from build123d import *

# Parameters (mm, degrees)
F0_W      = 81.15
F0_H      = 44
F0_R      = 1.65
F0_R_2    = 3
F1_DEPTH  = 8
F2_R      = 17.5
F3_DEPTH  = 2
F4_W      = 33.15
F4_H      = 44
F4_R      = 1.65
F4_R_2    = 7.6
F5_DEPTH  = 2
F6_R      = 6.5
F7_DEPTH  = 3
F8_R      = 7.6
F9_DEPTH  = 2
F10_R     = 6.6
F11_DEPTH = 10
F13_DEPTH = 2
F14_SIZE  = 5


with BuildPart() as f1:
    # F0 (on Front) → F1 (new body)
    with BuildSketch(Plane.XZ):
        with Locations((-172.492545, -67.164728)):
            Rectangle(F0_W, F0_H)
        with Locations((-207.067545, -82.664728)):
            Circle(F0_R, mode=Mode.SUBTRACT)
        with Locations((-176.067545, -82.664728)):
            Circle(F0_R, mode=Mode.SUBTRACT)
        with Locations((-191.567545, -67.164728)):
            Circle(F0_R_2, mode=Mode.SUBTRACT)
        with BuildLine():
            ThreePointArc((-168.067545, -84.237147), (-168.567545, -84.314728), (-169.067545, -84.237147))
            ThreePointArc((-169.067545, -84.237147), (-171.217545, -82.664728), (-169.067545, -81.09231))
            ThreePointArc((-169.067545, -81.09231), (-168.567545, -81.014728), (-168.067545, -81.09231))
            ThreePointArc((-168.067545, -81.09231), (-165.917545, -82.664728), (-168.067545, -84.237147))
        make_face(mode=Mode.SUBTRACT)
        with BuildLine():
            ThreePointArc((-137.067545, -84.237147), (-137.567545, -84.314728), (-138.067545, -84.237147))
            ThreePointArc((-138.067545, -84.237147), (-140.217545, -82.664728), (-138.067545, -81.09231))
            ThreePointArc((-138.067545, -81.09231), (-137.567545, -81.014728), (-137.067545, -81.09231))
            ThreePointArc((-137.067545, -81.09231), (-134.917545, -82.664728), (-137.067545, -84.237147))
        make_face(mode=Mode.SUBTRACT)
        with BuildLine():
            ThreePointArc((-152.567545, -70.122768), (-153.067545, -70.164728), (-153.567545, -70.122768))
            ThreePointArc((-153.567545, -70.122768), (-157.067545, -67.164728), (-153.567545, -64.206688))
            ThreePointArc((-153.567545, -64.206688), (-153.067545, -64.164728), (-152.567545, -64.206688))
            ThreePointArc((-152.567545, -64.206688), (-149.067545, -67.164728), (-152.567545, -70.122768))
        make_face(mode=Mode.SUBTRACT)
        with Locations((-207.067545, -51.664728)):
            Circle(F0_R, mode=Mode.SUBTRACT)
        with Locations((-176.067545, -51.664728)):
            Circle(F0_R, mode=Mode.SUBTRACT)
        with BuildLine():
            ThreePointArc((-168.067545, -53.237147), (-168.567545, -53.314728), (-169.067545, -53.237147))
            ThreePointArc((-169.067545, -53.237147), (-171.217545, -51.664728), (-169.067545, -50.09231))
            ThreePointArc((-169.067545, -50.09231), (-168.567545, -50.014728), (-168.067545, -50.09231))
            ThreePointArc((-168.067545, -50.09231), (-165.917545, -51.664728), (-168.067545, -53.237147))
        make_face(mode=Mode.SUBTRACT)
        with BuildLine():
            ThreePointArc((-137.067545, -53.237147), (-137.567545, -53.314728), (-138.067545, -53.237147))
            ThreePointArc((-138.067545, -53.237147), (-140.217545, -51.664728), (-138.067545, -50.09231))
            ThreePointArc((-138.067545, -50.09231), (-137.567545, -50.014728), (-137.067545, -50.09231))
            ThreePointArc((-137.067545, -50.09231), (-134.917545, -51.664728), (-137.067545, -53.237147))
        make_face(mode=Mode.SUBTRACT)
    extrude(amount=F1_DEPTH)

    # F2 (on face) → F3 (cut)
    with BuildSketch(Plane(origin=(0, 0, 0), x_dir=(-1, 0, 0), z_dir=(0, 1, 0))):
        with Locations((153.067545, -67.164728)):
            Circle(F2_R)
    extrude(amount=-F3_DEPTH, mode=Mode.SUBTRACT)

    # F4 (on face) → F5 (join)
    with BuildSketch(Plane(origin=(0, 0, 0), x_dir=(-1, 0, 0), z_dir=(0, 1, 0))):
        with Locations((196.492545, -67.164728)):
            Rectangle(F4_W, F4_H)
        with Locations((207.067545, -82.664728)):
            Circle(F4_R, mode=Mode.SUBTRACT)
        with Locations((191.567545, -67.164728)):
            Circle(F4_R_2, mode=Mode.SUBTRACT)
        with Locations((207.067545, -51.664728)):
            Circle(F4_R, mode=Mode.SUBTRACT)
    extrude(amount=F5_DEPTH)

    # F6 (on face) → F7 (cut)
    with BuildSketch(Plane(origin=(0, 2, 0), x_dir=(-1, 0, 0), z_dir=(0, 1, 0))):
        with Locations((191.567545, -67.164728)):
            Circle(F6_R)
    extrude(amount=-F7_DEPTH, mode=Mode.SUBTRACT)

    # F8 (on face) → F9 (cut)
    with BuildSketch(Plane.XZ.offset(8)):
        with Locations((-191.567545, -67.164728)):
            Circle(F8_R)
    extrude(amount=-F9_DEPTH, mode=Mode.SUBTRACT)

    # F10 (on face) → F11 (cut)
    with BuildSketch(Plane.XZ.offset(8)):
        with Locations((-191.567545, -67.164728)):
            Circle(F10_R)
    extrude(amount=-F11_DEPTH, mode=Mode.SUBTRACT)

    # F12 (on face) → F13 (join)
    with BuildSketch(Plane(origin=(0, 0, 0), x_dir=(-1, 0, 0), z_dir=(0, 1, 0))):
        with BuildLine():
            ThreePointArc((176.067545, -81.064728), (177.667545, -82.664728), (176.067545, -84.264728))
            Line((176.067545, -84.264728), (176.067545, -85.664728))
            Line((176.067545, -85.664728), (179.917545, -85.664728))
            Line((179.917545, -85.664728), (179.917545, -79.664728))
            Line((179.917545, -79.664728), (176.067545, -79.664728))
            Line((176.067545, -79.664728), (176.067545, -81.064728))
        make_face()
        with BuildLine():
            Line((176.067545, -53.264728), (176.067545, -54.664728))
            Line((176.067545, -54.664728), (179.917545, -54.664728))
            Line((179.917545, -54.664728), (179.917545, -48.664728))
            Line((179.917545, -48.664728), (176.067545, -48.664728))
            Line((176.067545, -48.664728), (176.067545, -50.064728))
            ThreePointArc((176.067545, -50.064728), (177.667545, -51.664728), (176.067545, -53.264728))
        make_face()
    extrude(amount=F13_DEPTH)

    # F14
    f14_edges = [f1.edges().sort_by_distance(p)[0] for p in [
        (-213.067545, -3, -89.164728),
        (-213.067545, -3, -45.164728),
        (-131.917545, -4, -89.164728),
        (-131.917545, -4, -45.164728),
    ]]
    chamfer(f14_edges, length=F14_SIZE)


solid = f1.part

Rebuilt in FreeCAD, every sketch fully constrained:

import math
import FreeCAD as App
import Part
import Sketcher
Q = App.Units.Quantity


def edges_at(feature, points):
    """Names of the edges that pass closest to the given points."""
    edges = feature.Shape.Edges
    near = lambda p: min(range(len(edges)), key=lambda i: edges[i].distToShape(Part.Vertex(*p))[0])
    return sorted({f"Edge{near(p) + 1}" for p in points})

doc = App.newDocument("Part")
body = doc.addObject("PartDesign::Body", "Body")

sketch1 = doc.addObject("Sketcher::SketchObject", "Sketch")
body.addObject(sketch1)
sketch1.AttachmentSupport = (doc.XZ_Plane, [""])
sketch1.MapMode = "FlatFace"
sketch1.addGeometry(Part.LineSegment(App.Vector(-213.1, -45.2, 0), App.Vector(-213.1, -89.2, 0)), False)
sketch1.addGeometry(Part.LineSegment(App.Vector(-213.1, -89.2, 0), App.Vector(-131.9, -89.2, 0)), False)
sketch1.addGeometry(Part.LineSegment(App.Vector(-131.9, -89.2, 0), App.Vector(-131.9, -45.2, 0)), False)
sketch1.addGeometry(Part.LineSegment(App.Vector(-131.9, -45.2, 0), App.Vector(-213.1, -45.2, 0)), False)
sketch1.addGeometry(Part.Circle(App.Vector(-207.1, -82.7, 0), App.Vector(0, 0, 1), 1.6), False)
sketch1.addGeometry(Part.Circle(App.Vector(-176.1, -82.7, 0), App.Vector(0, 0, 1), 1.6), False)
sketch1.addGeometry(Part.ArcOfCircle(Part.Circle(App.Vector(-167.6, -82.7, 0), App.Vector(0, 0, 1), 1.6), math.radians(-108), math.radians(108)), False)
sketch1.addGeometry(Part.ArcOfCircle(Part.Circle(App.Vector(-168.6, -82.7, 0), App.Vector(0, 0, 1), 1.7), math.radians(-108), math.radians(-72)), False)
sketch1.addGeometry(Part.ArcOfCircle(Part.Circle(App.Vector(-169.6, -82.7, 0), App.Vector(0, 0, 1), 1.6), math.radians(72), math.radians(288)), False)
sketch1.addGeometry(Part.ArcOfCircle(Part.Circle(App.Vector(-168.6, -82.7, 0), App.Vector(0, 0, 1), 1.6), math.radians(72), math.radians(108)), False)
sketch1.addGeometry(Part.ArcOfCircle(Part.Circle(App.Vector(-136.6, -82.7, 0), App.Vector(0, 0, 1), 1.6), math.radians(-108), math.radians(108)), False)
sketch1.addGeometry(Part.ArcOfCircle(Part.Circle(App.Vector(-137.6, -82.7, 0), App.Vector(0, 0, 1), 1.7), math.radians(-108), math.radians(-72)), False)
sketch1.addGeometry(Part.ArcOfCircle(Part.Circle(App.Vector(-138.6, -82.7, 0), App.Vector(0, 0, 1), 1.6), math.radians(72), math.radians(288)), False)
sketch1.addGeometry(Part.ArcOfCircle(Part.Circle(App.Vector(-137.6, -82.7, 0), App.Vector(0, 0, 1), 1.6), math.radians(72), math.radians(108)), False)
sketch1.addGeometry(Part.Circle(App.Vector(-191.6, -67.2, 0), App.Vector(0, 0, 1), 3), False)
sketch1.addGeometry(Part.Circle(App.Vector(-207.1, -51.7, 0), App.Vector(0, 0, 1), 1.6), False)
sketch1.addGeometry(Part.Circle(App.Vector(-176.1, -51.7, 0), App.Vector(0, 0, 1), 1.6), False)
sketch1.addGeometry(Part.ArcOfCircle(Part.Circle(App.Vector(-152.1, -67.2, 0), App.Vector(0, 0, 1), 3), math.radians(-100), math.radians(100)), False)
sketch1.addGeometry(Part.ArcOfCircle(Part.Circle(App.Vector(-153.1, -67.2, 0), App.Vector(0, 0, 1), 3), math.radians(-99.59), math.radians(-80.41)), False)
sketch1.addGeometry(Part.ArcOfCircle(Part.Circle(App.Vector(-154.1, -67.2, 0), App.Vector(0, 0, 1), 3), math.radians(80), math.radians(280)), False)
sketch1.addGeometry(Part.ArcOfCircle(Part.Circle(App.Vector(-153.1, -67.2, 0), App.Vector(0, 0, 1), 3), math.radians(80.41), math.radians(99.59)), False)
sketch1.addGeometry(Part.ArcOfCircle(Part.Circle(App.Vector(-167.6, -51.7, 0), App.Vector(0, 0, 1), 1.6), math.radians(-108), math.radians(108)), False)
sketch1.addGeometry(Part.ArcOfCircle(Part.Circle(App.Vector(-168.6, -51.7, 0), App.Vector(0, 0, 1), 1.7), math.radians(-108), math.radians(-72)), False)
sketch1.addGeometry(Part.ArcOfCircle(Part.Circle(App.Vector(-169.6, -51.7, 0), App.Vector(0, 0, 1), 1.6), math.radians(72), math.radians(288)), False)
sketch1.addGeometry(Part.ArcOfCircle(Part.Circle(App.Vector(-168.6, -51.7, 0), App.Vector(0, 0, 1), 1.6), math.radians(72), math.radians(108)), False)
sketch1.addGeometry(Part.ArcOfCircle(Part.Circle(App.Vector(-136.6, -51.7, 0), App.Vector(0, 0, 1), 1.6), math.radians(-108), math.radians(108)), False)
sketch1.addGeometry(Part.ArcOfCircle(Part.Circle(App.Vector(-137.6, -51.7, 0), App.Vector(0, 0, 1), 1.7), math.radians(-108), math.radians(-72)), False)
sketch1.addGeometry(Part.ArcOfCircle(Part.Circle(App.Vector(-138.6, -51.7, 0), App.Vector(0, 0, 1), 1.6), math.radians(72), math.radians(288)), False)
sketch1.addGeometry(Part.ArcOfCircle(Part.Circle(App.Vector(-137.6, -51.7, 0), App.Vector(0, 0, 1), 1.6), math.radians(72), math.radians(108)), False)
sketch1.addConstraint(Sketcher.Constraint("Coincident", 0, 2, 1, 1))
sketch1.addConstraint(Sketcher.Constraint("Coincident", 1, 2, 2, 1))
sketch1.addConstraint(Sketcher.Constraint("Coincident", 2, 2, 3, 1))
sketch1.addConstraint(Sketcher.Constraint("Coincident", 3, 2, 0, 1))
sketch1.addConstraint(Sketcher.Constraint("Coincident", 6, 1, 7, 2))
sketch1.addConstraint(Sketcher.Constraint("Coincident", 7, 1, 8, 2))
sketch1.addConstraint(Sketcher.Constraint("Coincident", 8, 1, 9, 2))
sketch1.addConstraint(Sketcher.Constraint("Coincident", 9, 1, 6, 2))
sketch1.addConstraint(Sketcher.Constraint("Coincident", 10, 1, 11, 2))
sketch1.addConstraint(Sketcher.Constraint("Coincident", 11, 1, 12, 2))
sketch1.addConstraint(Sketcher.Constraint("Coincident", 12, 1, 13, 2))
sketch1.addConstraint(Sketcher.Constraint("Coincident", 13, 1, 10, 2))
sketch1.addConstraint(Sketcher.Constraint("Coincident", 17, 1, 18, 2))
sketch1.addConstraint(Sketcher.Constraint("Coincident", 18, 1, 19, 2))
sketch1.addConstraint(Sketcher.Constraint("Coincident", 19, 1, 20, 2))
sketch1.addConstraint(Sketcher.Constraint("Coincident", 20, 1, 17, 2))
sketch1.addConstraint(Sketcher.Constraint("Coincident", 21, 1, 22, 2))
sketch1.addConstraint(Sketcher.Constraint("Coincident", 22, 1, 23, 2))
sketch1.addConstraint(Sketcher.Constraint("Coincident", 23, 1, 24, 2))
sketch1.addConstraint(Sketcher.Constraint("Coincident", 24, 1, 21, 2))
sketch1.addConstraint(Sketcher.Constraint("Coincident", 25, 1, 26, 2))
sketch1.addConstraint(Sketcher.Constraint("Coincident", 26, 1, 27, 2))
sketch1.addConstraint(Sketcher.Constraint("Coincident", 27, 1, 28, 2))
sketch1.addConstraint(Sketcher.Constraint("Coincident", 28, 1, 25, 2))
sketch1.addConstraint(Sketcher.Constraint("Vertical", 0))
sketch1.addConstraint(Sketcher.Constraint("Horizontal", 1))
sketch1.addConstraint(Sketcher.Constraint("Vertical", 2))
sketch1.addConstraint(Sketcher.Constraint("Horizontal", 3))
sketch1.addConstraint(Sketcher.Constraint("Coincident", 9, 3, 7, 3))
sketch1.addConstraint(Sketcher.Constraint("Coincident", 13, 3, 11, 3))
sketch1.addConstraint(Sketcher.Constraint("Coincident", 24, 3, 22, 3))
sketch1.addConstraint(Sketcher.Constraint("Coincident", 28, 3, 26, 3))
sketch1.addConstraint(Sketcher.Constraint("Equal", 4, 5))
sketch1.addConstraint(Sketcher.Constraint("Equal", 5, 6))
sketch1.addConstraint(Sketcher.Constraint("Equal", 6, 8))
sketch1.addConstraint(Sketcher.Constraint("Equal", 8, 10))
sketch1.addConstraint(Sketcher.Constraint("Equal", 7, 11))
sketch1.addConstraint(Sketcher.Constraint("Equal", 10, 12))
sketch1.addConstraint(Sketcher.Constraint("Equal", 9, 13))
sketch1.addConstraint(Sketcher.Constraint("Equal", 12, 15))
sketch1.addConstraint(Sketcher.Constraint("Equal", 15, 16))
sketch1.addConstraint(Sketcher.Constraint("Equal", 14, 17))
sketch1.addConstraint(Sketcher.Constraint("Equal", 17, 19))
sketch1.addConstraint(Sketcher.Constraint("Equal", 18, 20))
sketch1.addConstraint(Sketcher.Constraint("Equal", 16, 21))
sketch1.addConstraint(Sketcher.Constraint("Equal", 11, 22))
sketch1.addConstraint(Sketcher.Constraint("Equal", 21, 23))
sketch1.addConstraint(Sketcher.Constraint("Equal", 13, 24))
sketch1.addConstraint(Sketcher.Constraint("Equal", 23, 25))
sketch1.addConstraint(Sketcher.Constraint("Equal", 22, 26))
sketch1.addConstraint(Sketcher.Constraint("Equal", 25, 27))
sketch1.addConstraint(Sketcher.Constraint("Equal", 24, 28))
sketch1.addConstraint(Sketcher.Constraint("Horizontal", 4, 3, 5, 3))
sketch1.addConstraint(Sketcher.Constraint("Horizontal", 5, 3, 6, 3))
sketch1.addConstraint(Sketcher.Constraint("Horizontal", 6, 3, 8, 3))
sketch1.addConstraint(Sketcher.Constraint("Horizontal", 8, 3, 10, 3))
sketch1.addConstraint(Sketcher.Constraint("Horizontal", 9, 3, 11, 3))
sketch1.addConstraint(Sketcher.Constraint("Horizontal", 10, 3, 12, 3))
sketch1.addConstraint(Sketcher.Constraint("Horizontal", 15, 3, 16, 3))
sketch1.addConstraint(Sketcher.Constraint("Horizontal", 14, 3, 17, 3))
sketch1.addConstraint(Sketcher.Constraint("Horizontal", 17, 3, 19, 3))
sketch1.addConstraint(Sketcher.Constraint("Horizontal", 16, 3, 21, 3))
sketch1.addConstraint(Sketcher.Constraint("Horizontal", 21, 3, 23, 3))
sketch1.addConstraint(Sketcher.Constraint("Horizontal", 23, 3, 25, 3))
sketch1.addConstraint(Sketcher.Constraint("Horizontal", 24, 3, 26, 3))
sketch1.addConstraint(Sketcher.Constraint("Horizontal", 25, 3, 27, 3))
sketch1.addConstraint(Sketcher.Constraint("Horizontal", 6, 1, 7, 1))
sketch1.addConstraint(Sketcher.Constraint("Horizontal", 7, 1, 10, 1))
sketch1.addConstraint(Sketcher.Constraint("Horizontal", 10, 1, 11, 1))
sketch1.addConstraint(Sketcher.Constraint("Horizontal", 17, 1, 18, 1))
sketch1.addConstraint(Sketcher.Constraint("Horizontal", 19, 1, 20, 1))
sketch1.addConstraint(Sketcher.Constraint("Horizontal", 21, 1, 22, 1))
sketch1.addConstraint(Sketcher.Constraint("Horizontal", 22, 1, 25, 1))
sketch1.addConstraint(Sketcher.Constraint("Horizontal", 25, 1, 26, 1))
sketch1.addConstraint(Sketcher.Constraint("Vertical", 4, 3, 15, 3))
sketch1.addConstraint(Sketcher.Constraint("Vertical", 5, 3, 16, 3))
sketch1.addConstraint(Sketcher.Constraint("Vertical", 6, 3, 21, 3))
sketch1.addConstraint(Sketcher.Constraint("Vertical", 9, 3, 22, 3))
sketch1.addConstraint(Sketcher.Constraint("Vertical", 10, 3, 25, 3))
sketch1.addConstraint(Sketcher.Constraint("Vertical", 7, 1, 8, 1))
sketch1.addConstraint(Sketcher.Constraint("Vertical", 18, 1, 19, 1))
sketch1.addConstraint(Sketcher.Constraint("Vertical", 9, 1, 21, 1))
sketch1.addConstraint(Sketcher.Constraint("Diameter", 14, Q("6 mm")))
sketch1.addConstraint(Sketcher.Constraint("Diameter", 4, Q("3.3 mm")))
sketch1.addConstraint(Sketcher.Constraint("DistanceY", 0, 2, 0, 1, Q("44 mm")))
sketch1.addConstraint(Sketcher.Constraint("DistanceX", 4, 3, 5, 3, Q("31 mm")))
sketch1.addConstraint(Sketcher.Constraint("DistanceX", 7, 3, 6, 3, Q("1 mm")))
sketch1.addConstraint(Sketcher.Constraint("DistanceX", 6, 3, 10, 3, Q("31 mm")))
sketch1.addConstraint(Sketcher.Constraint("DistanceX", 14, 3, 8, 3, Q("22 mm")))
sketch1.addConstraint(Sketcher.Constraint("DistanceY", 4, 3, 15, 3, Q("31 mm")))
sketch1.addConstraint(Sketcher.Constraint("DistanceX", 18, 3, 17, 3, Q("1 mm")))
sketch1.addConstraint(Sketcher.Constraint("DistanceX", 0, 2, 4, 3, Q("6 mm")))
sketch1.addConstraint(Sketcher.Constraint("DistanceY", 0, 2, 14, 3, Q("22 mm")))
sketch1.addConstraint(Sketcher.Constraint("DistanceX", 5, 3, 6, 1, Q("8 mm")))
sketch1.addConstraint(Sketcher.Constraint("DistanceX", 7, 1, 6, 1, Q("1 mm")))
sketch1.addConstraint(Sketcher.Constraint("DistanceX", 18, 1, 17, 1, Q("1 mm")))
sketch1.addConstraint(Sketcher.Constraint("DistanceX", 1, 1, 1, 2, Q("81.15 mm")))
sketch1.addConstraint(Sketcher.Constraint("DistanceY", 4, 3, 14, 3, Q("15.5 mm")))
sketch1.addConstraint(Sketcher.Constraint("DistanceX", 17, 3, 12, 3, Q("13.5 mm")))
sketch1.addConstraint(Sketcher.Constraint("Radius", 7, Q("1.65001 mm")))
sketch1.addConstraint(Sketcher.Constraint("Radius", 18, Q("3.000008 mm")))
sketch1.addConstraint(Sketcher.Constraint("DistanceY", 6, 3, -1, 1, Q("82.664728 mm")))
sketch1.addConstraint(Sketcher.Constraint("DistanceX", 4, 3, -1, 1, Q("207.067545 mm")))
pad1 = doc.addObject("PartDesign::Pad", "Pad")
body.addObject(pad1)
pad1.Profile = sketch1
pad1.Length = 8

sketch2 = doc.addObject("Sketcher::SketchObject", "Sketch001")
body.addObject(sketch2)
sketch2.AttachmentSupport = (doc.XZ_Plane, [""])
sketch2.MapMode = "FlatFace"
sketch2.addGeometry(Part.Circle(App.Vector(-153, -67, 0), App.Vector(0, 0, 1), 18), False)
sketch2.addConstraint(Sketcher.Constraint("Diameter", 0, Q("35 mm")))
sketch2.addConstraint(Sketcher.Constraint("DistanceX", 0, 3, -1, 1, Q("153.067545 mm")))
sketch2.addConstraint(Sketcher.Constraint("DistanceY", 0, 3, -1, 1, Q("67.164728 mm")))
pocket1 = doc.addObject("PartDesign::Pocket", "Pocket")
body.addObject(pocket1)
pocket1.Profile = sketch2
pocket1.Length = 2
pocket1.Reversed = True

sketch3 = doc.addObject("Sketcher::SketchObject", "Sketch002")
body.addObject(sketch3)
sketch3.AttachmentSupport = (doc.XZ_Plane, [""])
sketch3.MapMode = "FlatFace"
sketch3.addGeometry(Part.LineSegment(App.Vector(-179.9, -45.2, 0), App.Vector(-179.9, -89.2, 0)), False)
sketch3.addGeometry(Part.LineSegment(App.Vector(-179.9, -89.2, 0), App.Vector(-213.1, -89.2, 0)), False)
sketch3.addGeometry(Part.LineSegment(App.Vector(-213.1, -89.2, 0), App.Vector(-213.1, -45.2, 0)), False)
sketch3.addGeometry(Part.LineSegment(App.Vector(-213.1, -45.2, 0), App.Vector(-179.9, -45.2, 0)), False)
sketch3.addGeometry(Part.Circle(App.Vector(-207.1, -82.7, 0), App.Vector(0, 0, 1), 1.6), False)
sketch3.addGeometry(Part.Circle(App.Vector(-191.6, -67.2, 0), App.Vector(0, 0, 1), 7.6), False)
sketch3.addGeometry(Part.Circle(App.Vector(-207.1, -51.7, 0), App.Vector(0, 0, 1), 1.6), False)
sketch3.addConstraint(Sketcher.Constraint("Coincident", 0, 2, 1, 1))
sketch3.addConstraint(Sketcher.Constraint("Coincident", 1, 2, 2, 1))
sketch3.addConstraint(Sketcher.Constraint("Coincident", 2, 2, 3, 1))
sketch3.addConstraint(Sketcher.Constraint("Coincident", 3, 2, 0, 1))
sketch3.addConstraint(Sketcher.Constraint("Vertical", 0))
sketch3.addConstraint(Sketcher.Constraint("Horizontal", 1))
sketch3.addConstraint(Sketcher.Constraint("Vertical", 2))
sketch3.addConstraint(Sketcher.Constraint("Horizontal", 3))
sketch3.addConstraint(Sketcher.Constraint("Equal", 4, 6))
sketch3.addConstraint(Sketcher.Constraint("Vertical", 4, 3, 6, 3))
sketch3.addConstraint(Sketcher.Constraint("Diameter", 4, Q("3.3 mm")))
sketch3.addConstraint(Sketcher.Constraint("Diameter", 5, Q("15.2 mm")))
sketch3.addConstraint(Sketcher.Constraint("DistanceY", 0, 2, 0, 1, Q("44 mm")))
sketch3.addConstraint(Sketcher.Constraint("DistanceY", 4, 3, 6, 3, Q("31 mm")))
sketch3.addConstraint(Sketcher.Constraint("DistanceY", 0, 2, 5, 3, Q("22 mm")))
sketch3.addConstraint(Sketcher.Constraint("DistanceX", 1, 2, 4, 3, Q("6 mm")))
sketch3.addConstraint(Sketcher.Constraint("DistanceX", 1, 2, 1, 1, Q("33.15 mm")))
sketch3.addConstraint(Sketcher.Constraint("DistanceX", 4, 3, 5, 3, Q("15.5 mm")))
sketch3.addConstraint(Sketcher.Constraint("DistanceY", 4, 3, 5, 3, Q("15.5 mm")))
sketch3.addConstraint(Sketcher.Constraint("DistanceX", 4, 3, -1, 1, Q("207.067545 mm")))
sketch3.addConstraint(Sketcher.Constraint("DistanceY", 4, 3, -1, 1, Q("82.664728 mm")))
pad2 = doc.addObject("PartDesign::Pad", "Pad001")
body.addObject(pad2)
pad2.Profile = sketch3
pad2.Length = 2
pad2.Reversed = True

sketch4 = doc.addObject("Sketcher::SketchObject", "Sketch003")
body.addObject(sketch4)
sketch4.AttachmentSupport = (doc.XZ_Plane, [""])
sketch4.MapMode = "FlatFace"
sketch4.AttachmentOffset = App.Placement(App.Vector(0, 0, -2), App.Rotation())
sketch4.addGeometry(Part.Circle(App.Vector(-192, -67, 0), App.Vector(0, 0, 1), 6), False)
sketch4.addConstraint(Sketcher.Constraint("Diameter", 0, Q("13 mm")))
sketch4.addConstraint(Sketcher.Constraint("DistanceX", 0, 3, -1, 1, Q("191.567545 mm")))
sketch4.addConstraint(Sketcher.Constraint("DistanceY", 0, 3, -1, 1, Q("67.164728 mm")))
pocket2 = doc.addObject("PartDesign::Pocket", "Pocket001")
body.addObject(pocket2)
pocket2.Profile = sketch4
pocket2.Length = 3
pocket2.Reversed = True

sketch5 = doc.addObject("Sketcher::SketchObject", "Sketch004")
body.addObject(sketch5)
sketch5.AttachmentSupport = (doc.XZ_Plane, [""])
sketch5.MapMode = "FlatFace"
sketch5.AttachmentOffset = App.Placement(App.Vector(0, 0, 8), App.Rotation())
sketch5.addGeometry(Part.Circle(App.Vector(-192, -67, 0), App.Vector(0, 0, 1), 8), False)
sketch5.addConstraint(Sketcher.Constraint("Diameter", 0, Q("15.2 mm")))
sketch5.addConstraint(Sketcher.Constraint("DistanceX", 0, 3, -1, 1, Q("191.567545 mm")))
sketch5.addConstraint(Sketcher.Constraint("DistanceY", 0, 3, -1, 1, Q("67.164728 mm")))
pocket3 = doc.addObject("PartDesign::Pocket", "Pocket002")
body.addObject(pocket3)
pocket3.Profile = sketch5
pocket3.Length = 2

sketch6 = doc.addObject("Sketcher::SketchObject", "Sketch005")
body.addObject(sketch6)
sketch6.AttachmentSupport = (doc.XZ_Plane, [""])
sketch6.MapMode = "FlatFace"
sketch6.AttachmentOffset = App.Placement(App.Vector(0, 0, 8), App.Rotation())
sketch6.addGeometry(Part.Circle(App.Vector(-192, -67, 0), App.Vector(0, 0, 1), 7), False)
sketch6.addConstraint(Sketcher.Constraint("Diameter", 0, Q("13.2 mm")))
sketch6.addConstraint(Sketcher.Constraint("DistanceX", 0, 3, -1, 1, Q("191.567545 mm")))
sketch6.addConstraint(Sketcher.Constraint("DistanceY", 0, 3, -1, 1, Q("67.164728 mm")))
pocket4 = doc.addObject("PartDesign::Pocket", "Pocket003")
body.addObject(pocket4)
pocket4.Profile = sketch6
pocket4.Length = 10

sketch7 = doc.addObject("Sketcher::SketchObject", "Sketch006")
body.addObject(sketch7)
sketch7.AttachmentSupport = (doc.XZ_Plane, [""])
sketch7.MapMode = "FlatFace"
sketch7.addGeometry(Part.ArcOfCircle(Part.Circle(App.Vector(-176.1, -82.7, 0), App.Vector(0, 0, 1), 1.6), math.radians(90), math.radians(270)), False)
sketch7.addGeometry(Part.LineSegment(App.Vector(-176.1, -84.3, 0), App.Vector(-176.1, -85.7, 0)), False)
sketch7.addGeometry(Part.LineSegment(App.Vector(-176.1, -85.7, 0), App.Vector(-179.9, -85.7, 0)), False)
sketch7.addGeometry(Part.LineSegment(App.Vector(-179.9, -85.7, 0), App.Vector(-179.9, -79.7, 0)), False)
sketch7.addGeometry(Part.LineSegment(App.Vector(-179.9, -79.7, 0), App.Vector(-176.1, -79.7, 0)), False)
sketch7.addGeometry(Part.LineSegment(App.Vector(-176.1, -79.7, 0), App.Vector(-176.1, -81.1, 0)), False)
sketch7.addGeometry(Part.LineSegment(App.Vector(-176.1, -53.3, 0), App.Vector(-176.1, -54.7, 0)), False)
sketch7.addGeometry(Part.LineSegment(App.Vector(-176.1, -54.7, 0), App.Vector(-179.9, -54.7, 0)), False)
sketch7.addGeometry(Part.LineSegment(App.Vector(-179.9, -54.7, 0), App.Vector(-179.9, -48.7, 0)), False)
sketch7.addGeometry(Part.LineSegment(App.Vector(-179.9, -48.7, 0), App.Vector(-176.1, -48.7, 0)), False)
sketch7.addGeometry(Part.LineSegment(App.Vector(-176.1, -48.7, 0), App.Vector(-176.1, -50.1, 0)), False)
sketch7.addGeometry(Part.ArcOfCircle(Part.Circle(App.Vector(-176.1, -51.7, 0), App.Vector(0, 0, 1), 1.6), math.radians(90), math.radians(270)), False)
sketch7.addConstraint(Sketcher.Constraint("Coincident", 0, 2, 1, 1))
sketch7.addConstraint(Sketcher.Constraint("Coincident", 1, 2, 2, 1))
sketch7.addConstraint(Sketcher.Constraint("Coincident", 2, 2, 3, 1))
sketch7.addConstraint(Sketcher.Constraint("Coincident", 3, 2, 4, 1))
sketch7.addConstraint(Sketcher.Constraint("Coincident", 4, 2, 5, 1))
sketch7.addConstraint(Sketcher.Constraint("Coincident", 5, 2, 0, 1))
sketch7.addConstraint(Sketcher.Constraint("Coincident", 6, 2, 7, 1))
sketch7.addConstraint(Sketcher.Constraint("Coincident", 7, 2, 8, 1))
sketch7.addConstraint(Sketcher.Constraint("Coincident", 8, 2, 9, 1))
sketch7.addConstraint(Sketcher.Constraint("Coincident", 9, 2, 10, 1))
sketch7.addConstraint(Sketcher.Constraint("Coincident", 10, 2, 11, 1))
sketch7.addConstraint(Sketcher.Constraint("Coincident", 11, 2, 6, 1))
sketch7.addConstraint(Sketcher.Constraint("Vertical", 1))
sketch7.addConstraint(Sketcher.Constraint("Horizontal", 2))
sketch7.addConstraint(Sketcher.Constraint("Vertical", 3))
sketch7.addConstraint(Sketcher.Constraint("Horizontal", 4))
sketch7.addConstraint(Sketcher.Constraint("Vertical", 5))
sketch7.addConstraint(Sketcher.Constraint("Vertical", 6))
sketch7.addConstraint(Sketcher.Constraint("Horizontal", 7))
sketch7.addConstraint(Sketcher.Constraint("Vertical", 8))
sketch7.addConstraint(Sketcher.Constraint("Horizontal", 9))
sketch7.addConstraint(Sketcher.Constraint("Vertical", 10))
sketch7.addConstraint(Sketcher.Constraint("Equal", 0, 11))
sketch7.addConstraint(Sketcher.Constraint("Vertical", 0, 3, 11, 3))
sketch7.addConstraint(Sketcher.Constraint("Vertical", 11, 3, 0, 2))
sketch7.addConstraint(Sketcher.Constraint("Vertical", 1, 2, 4, 2))
sketch7.addConstraint(Sketcher.Constraint("Vertical", 5, 2, 6, 2))
sketch7.addConstraint(Sketcher.Constraint("Vertical", 3, 2, 7, 2))
sketch7.addConstraint(Sketcher.Constraint("Vertical", 6, 2, 9, 2))
sketch7.addConstraint(Sketcher.Constraint("Equal", 1, 5))
sketch7.addConstraint(Sketcher.Constraint("Equal", 5, 6))
sketch7.addConstraint(Sketcher.Constraint("Equal", 3, 8))
sketch7.addConstraint(Sketcher.Constraint("Radius", 0, Q("1.6 mm")))
sketch7.addConstraint(Sketcher.Constraint("DistanceY", 3, 1, 3, 2, Q("6 mm")))
sketch7.addConstraint(Sketcher.Constraint("DistanceY", 0, 3, 11, 3, Q("31 mm")))
sketch7.addConstraint(Sketcher.Constraint("DistanceX", 2, 2, 2, 1, Q("3.85 mm")))
sketch7.addConstraint(Sketcher.Constraint("DistanceY", 5, 2, -1, 1, Q("81.064728 mm")))
sketch7.addConstraint(Sketcher.Constraint("DistanceX", 0, 3, -1, 1, Q("176.067545 mm")))
pad3 = doc.addObject("PartDesign::Pad", "Pad002")
body.addObject(pad3)
pad3.Profile = sketch7
pad3.Length = 2
pad3.Reversed = True
doc.recompute()

chamfer = doc.addObject("PartDesign::Chamfer", "Chamfer")
body.addObject(chamfer)
chamfer.Base = (pad3, edges_at(pad3, [
    (-213.068, -3, -89.165),
    (-213.068, -3, -45.165),
    (-131.918, -4, -89.165),
    (-131.918, -4, -45.165),
]))
chamfer.Size = 5

doc.recompute()
